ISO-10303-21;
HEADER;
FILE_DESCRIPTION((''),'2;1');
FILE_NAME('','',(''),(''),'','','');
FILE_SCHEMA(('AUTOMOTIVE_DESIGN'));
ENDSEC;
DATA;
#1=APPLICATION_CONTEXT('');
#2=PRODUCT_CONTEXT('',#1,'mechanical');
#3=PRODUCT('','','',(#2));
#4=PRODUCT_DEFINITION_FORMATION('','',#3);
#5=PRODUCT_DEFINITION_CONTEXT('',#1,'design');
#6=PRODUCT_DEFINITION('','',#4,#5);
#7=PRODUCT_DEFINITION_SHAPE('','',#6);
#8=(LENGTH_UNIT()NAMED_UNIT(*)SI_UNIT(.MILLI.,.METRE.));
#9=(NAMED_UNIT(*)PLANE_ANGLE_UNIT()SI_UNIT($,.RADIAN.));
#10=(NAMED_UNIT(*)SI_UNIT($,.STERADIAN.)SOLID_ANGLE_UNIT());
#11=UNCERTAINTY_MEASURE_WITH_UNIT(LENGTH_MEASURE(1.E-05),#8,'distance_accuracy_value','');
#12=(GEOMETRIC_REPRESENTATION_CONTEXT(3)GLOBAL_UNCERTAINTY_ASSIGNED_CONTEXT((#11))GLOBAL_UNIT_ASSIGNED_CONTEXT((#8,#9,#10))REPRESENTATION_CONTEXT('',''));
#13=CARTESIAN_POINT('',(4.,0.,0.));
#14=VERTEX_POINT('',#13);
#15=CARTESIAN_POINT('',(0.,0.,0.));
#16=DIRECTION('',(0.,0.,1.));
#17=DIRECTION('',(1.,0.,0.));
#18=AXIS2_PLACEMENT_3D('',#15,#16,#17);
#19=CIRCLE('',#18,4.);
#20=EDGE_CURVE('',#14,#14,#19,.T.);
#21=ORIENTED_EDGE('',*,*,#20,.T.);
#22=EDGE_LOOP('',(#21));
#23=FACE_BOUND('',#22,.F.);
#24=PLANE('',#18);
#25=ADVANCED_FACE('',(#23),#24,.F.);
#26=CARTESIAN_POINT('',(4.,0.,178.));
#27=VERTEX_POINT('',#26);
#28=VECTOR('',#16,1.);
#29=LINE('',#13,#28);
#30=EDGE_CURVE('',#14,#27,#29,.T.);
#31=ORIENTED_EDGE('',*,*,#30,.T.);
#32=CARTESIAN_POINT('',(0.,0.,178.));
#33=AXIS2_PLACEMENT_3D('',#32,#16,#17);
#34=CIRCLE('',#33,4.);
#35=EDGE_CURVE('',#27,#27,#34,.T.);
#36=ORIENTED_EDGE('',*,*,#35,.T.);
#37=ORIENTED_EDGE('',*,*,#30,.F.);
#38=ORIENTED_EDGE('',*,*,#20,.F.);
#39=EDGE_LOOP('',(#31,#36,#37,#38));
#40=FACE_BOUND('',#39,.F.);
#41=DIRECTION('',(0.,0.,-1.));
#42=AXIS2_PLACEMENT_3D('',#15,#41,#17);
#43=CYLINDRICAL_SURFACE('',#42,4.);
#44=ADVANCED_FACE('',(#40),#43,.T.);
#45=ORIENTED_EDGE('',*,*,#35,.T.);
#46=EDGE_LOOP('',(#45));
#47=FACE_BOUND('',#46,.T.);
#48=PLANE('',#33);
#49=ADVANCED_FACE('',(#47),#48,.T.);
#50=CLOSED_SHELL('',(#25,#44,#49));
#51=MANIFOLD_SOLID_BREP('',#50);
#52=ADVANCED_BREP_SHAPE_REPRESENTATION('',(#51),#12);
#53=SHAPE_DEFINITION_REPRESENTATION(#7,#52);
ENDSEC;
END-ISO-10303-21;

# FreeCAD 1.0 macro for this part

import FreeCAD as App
import Part
import Sketcher
from FreeCAD import Vector
Q = App.Units.Quantity

doc = App.newDocument("Part")
body = doc.addObject("PartDesign::Body", "Body")

sketch1 = doc.addObject("Sketcher::SketchObject", "Sketch")
body.addObject(sketch1)
sketch1.AttachmentSupport = (doc.XY_Plane, [""])
sketch1.MapMode = "FlatFace"
sketch1.addGeometry(Part.Circle(Vector(0, 0, 0), Vector(0, 0, 1), 4), False)
sketch1.addConstraint([
    Sketcher.Constraint("Coincident", 0, 3, -1, 1),
    Sketcher.Constraint("Diameter", 0, Q("8 mm")),
])
pad1 = doc.addObject("PartDesign::Pad", "Pad")
body.addObject(pad1)
pad1.Profile = sketch1
pad1.Length = 178

doc.recompute()
